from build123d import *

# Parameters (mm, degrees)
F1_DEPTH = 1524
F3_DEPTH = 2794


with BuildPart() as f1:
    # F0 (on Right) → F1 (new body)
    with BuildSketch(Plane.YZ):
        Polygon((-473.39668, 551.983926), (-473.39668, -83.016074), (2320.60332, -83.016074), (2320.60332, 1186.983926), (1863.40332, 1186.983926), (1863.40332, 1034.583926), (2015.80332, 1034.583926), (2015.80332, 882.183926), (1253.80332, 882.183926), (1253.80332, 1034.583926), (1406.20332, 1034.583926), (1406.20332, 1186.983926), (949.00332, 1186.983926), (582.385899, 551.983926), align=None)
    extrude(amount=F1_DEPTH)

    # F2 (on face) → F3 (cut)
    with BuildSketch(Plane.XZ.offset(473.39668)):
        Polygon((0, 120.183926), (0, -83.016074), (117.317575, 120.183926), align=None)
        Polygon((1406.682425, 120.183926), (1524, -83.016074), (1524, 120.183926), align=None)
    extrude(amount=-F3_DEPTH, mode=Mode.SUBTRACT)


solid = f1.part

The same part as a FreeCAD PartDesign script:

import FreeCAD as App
import Part
import Sketcher
from FreeCAD import Vector
Q = App.Units.Quantity


def add_polygon(sketch, points):
    """Adds a closed chain of lines whose ends are joined by coincident constraints."""
    first, n = sketch.GeometryCount, len(points)
    for a, b in zip(points, points[1:] + points[:1]):
        sketch.addGeometry(Part.LineSegment(App.Vector(*a, 0), App.Vector(*b, 0)), False)
    for i in range(n):
        sketch.addConstraint(Sketcher.Constraint("Coincident", first + i, 2, first + (i + 1) % n, 1))

doc = App.newDocument("Part")
body = doc.addObject("PartDesign::Body", "Body")

# Sketch on YZ plane
sketch1 = body.newObject("Sketcher::SketchObject", "Sketch")
sketch1.AttachmentSupport = (doc.getObject("YZ_Plane"), [""])
sketch1.MapMode = "FlatFace"
add_polygon(sketch1, [(-473.39668, 551.983926), (-473.39668, -83.016074), (2320.60332, -83.016074), (2320.60332, 1186.983926), (1863.40332, 1186.983926), (1863.40332, 1034.583926), (2015.80332, 1034.583926), (2015.80332, 882.183926), (1253.80332, 882.183926), (1253.80332, 1034.583926), (1406.20332, 1034.583926), (1406.20332, 1186.983926), (949.00332, 1186.983926), (582.385899, 551.983926)])  # lines 0-13
sketch1.addConstraint([
    Sketcher.Constraint("Vertical", 0),
    Sketcher.Constraint("Horizontal", 1),
    Sketcher.Constraint("Vertical", 2),
    Sketcher.Constraint("Horizontal", 3),
    Sketcher.Constraint("Vertical", 4),
    Sketcher.Constraint("Horizontal", 5),
    Sketcher.Constraint("Vertical", 6),
    Sketcher.Constraint("Horizontal", 7),
    Sketcher.Constraint("Vertical", 8),
    Sketcher.Constraint("Horizontal", 9),
    Sketcher.Constraint("Vertical", 10),
    Sketcher.Constraint("Horizontal", 11),
    Sketcher.Constraint("Horizontal", 13),
    Sketcher.Constraint("Horizontal", 5, 2, 8, 2),
    Sketcher.Constraint("Horizontal", 3, 2, 10, 2),
    Sketcher.Constraint("Equal", 5, 9),
    Sketcher.Constraint("Equal", 3, 11),
    Sketcher.Constraint("Equal", 9, 4),
    Sketcher.Constraint("Equal", 4, 6),
    Sketcher.Constraint("DistanceX", 1, 1, 1, 2, Q("110 in")),
    Sketcher.Constraint("DistanceX", 3, 2, 3, 1, Q("18 in")),
    Sketcher.Constraint("DistanceX", 5, 1, 5, 2, Q("6 in")),
    Sketcher.Constraint("DistanceX", 7, 2, 7, 1, Q("30 in")),
    Sketcher.Constraint("DistanceY", 0, 2, 0, 1, Q("25 in")),
    Sketcher.Constraint("DistanceY", 2, 1, 2, 2, Q("50 in")),
    Sketcher.Constraint("Angle", 12, Q("-120 deg")),
    Sketcher.Constraint("DistanceX", -1, 1, 12, 2, 582.385899),
    Sketcher.Constraint("DistanceY", 0, 2, -1, 1, 83.016074),
])
pad1 = body.newObject("PartDesign::Pad", "Pad")
pad1.Profile = sketch1
pad1.Length = Q("60 in")

# Sketch on XZ plane
sketch2 = body.newObject("Sketcher::SketchObject", "Sketch001")
sketch2.AttachmentSupport = (doc.getObject("XZ_Plane"), [""])
sketch2.MapMode = "FlatFace"
sketch2.AttachmentOffset = App.Placement(Vector(0, 0, 473.39668), App.Rotation())
add_polygon(sketch2, [(0, 120.183926), (0, -83.016074), (117.317575, 120.183926)])  # lines 0-2
add_polygon(sketch2, [(1406.682425, 120.183926), (1524, -83.016074), (1524, 120.183926)])  # lines 3-5
sketch2.addConstraint([
    Sketcher.Constraint("Vertical", 0),
    Sketcher.Constraint("Horizontal", 2),
    Sketcher.Constraint("Vertical", 4),
    Sketcher.Constraint("Horizontal", 5),
    Sketcher.Constraint("PointOnObject", 0, 2, -2),
    Sketcher.Constraint("Horizontal", 0, 2, 3, 2),
    Sketcher.Constraint("Horizontal", 2, 2, 4, 2),
    Sketcher.Constraint("Equal", 2, 5),
    Sketcher.Constraint("DistanceY", 0, 2, 0, 1, Q("8 in")),
    Sketcher.Constraint("DistanceX", -1, 1, 3, 2, Q("60 in")),
    Sketcher.Constraint("Angle", 1, Q("60 deg")),
    Sketcher.Constraint("DistanceY", 0, 2, -1, 1, 83.016074),
])
pocket1 = body.newObject("PartDesign::Pocket", "Pocket")
pocket1.Profile = sketch2
pocket1.Length = Q("110 in")

doc.recompute()
